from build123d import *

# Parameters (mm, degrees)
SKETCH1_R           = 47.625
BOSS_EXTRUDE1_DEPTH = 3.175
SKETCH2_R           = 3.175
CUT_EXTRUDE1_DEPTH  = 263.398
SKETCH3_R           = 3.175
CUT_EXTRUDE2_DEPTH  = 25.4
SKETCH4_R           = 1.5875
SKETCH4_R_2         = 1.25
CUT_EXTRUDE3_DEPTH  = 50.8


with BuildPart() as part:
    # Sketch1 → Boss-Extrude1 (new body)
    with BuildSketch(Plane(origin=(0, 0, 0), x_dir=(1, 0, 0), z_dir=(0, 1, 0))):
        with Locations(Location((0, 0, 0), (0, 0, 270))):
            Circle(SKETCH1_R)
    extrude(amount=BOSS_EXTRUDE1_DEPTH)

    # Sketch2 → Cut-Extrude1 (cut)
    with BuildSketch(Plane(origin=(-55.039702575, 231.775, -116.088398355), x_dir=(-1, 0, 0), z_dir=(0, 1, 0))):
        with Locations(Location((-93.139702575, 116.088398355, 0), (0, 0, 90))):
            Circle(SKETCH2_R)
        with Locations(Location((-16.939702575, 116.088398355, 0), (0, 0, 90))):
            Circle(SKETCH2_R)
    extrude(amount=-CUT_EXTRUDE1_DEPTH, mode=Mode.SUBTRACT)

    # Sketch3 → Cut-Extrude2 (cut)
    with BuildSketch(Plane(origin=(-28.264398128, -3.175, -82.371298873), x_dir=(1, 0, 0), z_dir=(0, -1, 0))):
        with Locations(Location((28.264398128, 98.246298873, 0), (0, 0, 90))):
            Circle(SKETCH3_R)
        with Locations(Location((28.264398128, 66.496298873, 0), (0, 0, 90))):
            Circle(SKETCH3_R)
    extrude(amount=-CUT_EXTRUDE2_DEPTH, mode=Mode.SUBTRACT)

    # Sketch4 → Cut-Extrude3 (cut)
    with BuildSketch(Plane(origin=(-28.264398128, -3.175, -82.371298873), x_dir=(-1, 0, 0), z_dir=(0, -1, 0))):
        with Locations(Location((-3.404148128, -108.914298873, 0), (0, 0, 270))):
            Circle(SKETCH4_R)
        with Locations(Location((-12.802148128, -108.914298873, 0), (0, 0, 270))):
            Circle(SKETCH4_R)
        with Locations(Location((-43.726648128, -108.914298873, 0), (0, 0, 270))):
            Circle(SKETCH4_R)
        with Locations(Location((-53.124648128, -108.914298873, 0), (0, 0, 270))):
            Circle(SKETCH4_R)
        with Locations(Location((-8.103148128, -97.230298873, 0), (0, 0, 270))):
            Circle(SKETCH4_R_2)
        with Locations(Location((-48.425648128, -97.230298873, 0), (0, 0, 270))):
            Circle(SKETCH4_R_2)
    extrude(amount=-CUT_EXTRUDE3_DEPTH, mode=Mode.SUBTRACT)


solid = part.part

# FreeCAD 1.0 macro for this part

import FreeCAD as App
import Part
import Sketcher
Q = App.Units.Quantity

doc = App.newDocument("Part")
body = doc.addObject("PartDesign::Body", "Body")

# Sketch on XZ plane
sketch1 = doc.addObject("Sketcher::SketchObject", "Sketch")
body.addObject(sketch1)
sketch1.AttachmentSupport = (doc.XZ_Plane, [""])
sketch1.MapMode = "FlatFace"
sketch1.addGeometry(Part.Circle(App.Vector(0, 0, 0), App.Vector(0, 0, 1), 47.625), False)
sketch1.addConstraint([
    Sketcher.Constraint("Coincident", 0, 3, -1, 1),
    Sketcher.Constraint("Diameter", 0, Q("3.75 in")),
])
pad1 = doc.addObject("PartDesign::Pad", "Pad")
body.addObject(pad1)
pad1.Profile = sketch1
pad1.Length = Q("0.125 in")
pad1.Reversed = True

# Sketch on XZ plane
sketch2 = doc.addObject("Sketcher::SketchObject", "Sketch001")
body.addObject(sketch2)
sketch2.AttachmentSupport = (doc.XZ_Plane, [""])
sketch2.MapMode = "FlatFace"
sketch2.AttachmentOffset = App.Placement(App.Vector(0, 0, -9.125 * 25.4), App.Rotation())
sketch2.addGeometry([
    Part.Circle(App.Vector(38.1, 0, 0), App.Vector(0, 0, 1), 3.175),
    Part.Circle(App.Vector(-38.1, 0, 0), App.Vector(0, 0, 1), 3.175),
], False)
sketch2.addConstraint([
    Sketcher.Constraint("Equal", 0, 1),
    Sketcher.Constraint("Symmetric", 0, 3, 1, 3, -1, 1),
    Sketcher.Constraint("PointOnObject", 0, 3, -1),
    Sketcher.Constraint("Diameter", 0, Q("0.25 in")),
    Sketcher.Constraint("DistanceX", 1, 3, 0, 3, Q("3 in")),
])
pocket1 = doc.addObject("PartDesign::Pocket", "Pocket")
body.addObject(pocket1)
pocket1.Profile = sketch2
pocket1.Length = Q("10.37 in")
pocket1.Reversed = True

# Sketch on XZ plane
sketch3 = doc.addObject("Sketcher::SketchObject", "Sketch002")
body.addObject(sketch3)
sketch3.AttachmentSupport = (doc.XZ_Plane, [""])
sketch3.MapMode = "FlatFace"
sketch3.AttachmentOffset = App.Placement(App.Vector(0, 0, 0.125 * 25.4), App.Rotation())
sketch3.addGeometry([
    Part.Circle(App.Vector(0, 15.875, 0), App.Vector(0, 0, 1), 3.175),
    Part.Circle(App.Vector(0, -15.875, 0), App.Vector(0, 0, 1), 3.175),
], False)
sketch3.addConstraint([
    Sketcher.Constraint("Equal", 0, 1),
    Sketcher.Constraint("Symmetric", 0, 3, 1, 3, -1, 1),
    Sketcher.Constraint("PointOnObject", 0, 3, -2),
    Sketcher.Constraint("Diameter", 0, Q("0.25 in")),
    Sketcher.Constraint("DistanceY", 1, 3, 0, 3, Q("1.25 in")),
])
pocket2 = doc.addObject("PartDesign::Pocket", "Pocket001")
body.addObject(pocket2)
pocket2.Profile = sketch3
pocket2.Length = Q("1 in")

# Sketch on XZ plane
sketch4 = doc.addObject("Sketcher::SketchObject", "Sketch003")
body.addObject(sketch4)
sketch4.AttachmentSupport = (doc.XZ_Plane, [""])
sketch4.MapMode = "FlatFace"
sketch4.AttachmentOffset = App.Placement(App.Vector(0, 0, 0.125 * 25.4), App.Rotation())
sketch4.addGeometry([
    Part.Circle(App.Vector(-24.86025, 26.543, 0), App.Vector(0, 0, 1), 1.5875),  # 0
    Part.Circle(App.Vector(-15.46225, 26.543, 0), App.Vector(0, 0, 1), 1.5875),  # 1
    Part.Circle(App.Vector(15.46225, 26.543, 0), App.Vector(0, 0, 1), 1.5875),  # 2
    Part.Circle(App.Vector(24.86025, 26.543, 0), App.Vector(0, 0, 1), 1.5875),  # 3
    Part.Circle(App.Vector(-20.16125, 14.859, 0), App.Vector(0, 0, 1), 1.25),  # 4
    Part.Circle(App.Vector(20.16125, 14.859, 0), App.Vector(0, 0, 1), 1.25),  # 5
], False)
sketch4.addConstraint([
    Sketcher.Constraint("Equal", 0, 1),
    Sketcher.Constraint("Equal", 1, 2),
    Sketcher.Constraint("Equal", 2, 3),
    Sketcher.Constraint("Equal", 4, 5),
    Sketcher.Constraint("Symmetric", 1, 3, 2, 3, -2),
    Sketcher.Constraint("Symmetric", 0, 3, 3, 3, -2),
    Sketcher.Constraint("Symmetric", 4, 3, 5, 3, -2),
    Sketcher.Constraint("Horizontal", 0, 3, 1, 3),
    Sketcher.Constraint("Diameter", 0, Q("0.125 in")),
    Sketcher.Constraint("Diameter", 4, Q("2.5 mm")),
    Sketcher.Constraint("DistanceX", 0, 3, 1, 3, Q("0.37 in")),
    Sketcher.Constraint("DistanceY", 4, 3, 1, 3, Q("0.46 in")),
    Sketcher.Constraint("DistanceY", -1, 1, 0, 3, Q("1.045 in")),
    Sketcher.Constraint("DistanceX", 4, 3, 1, 3, Q("0.185 in")),
    Sketcher.Constraint("DistanceX", 1, 3, 2, 3, Q("1.2175 in")),
])
pocket3 = doc.addObject("PartDesign::Pocket", "Pocket002")
body.addObject(pocket3)
pocket3.Profile = sketch4
pocket3.Length = Q("2 in")

doc.recompute()
